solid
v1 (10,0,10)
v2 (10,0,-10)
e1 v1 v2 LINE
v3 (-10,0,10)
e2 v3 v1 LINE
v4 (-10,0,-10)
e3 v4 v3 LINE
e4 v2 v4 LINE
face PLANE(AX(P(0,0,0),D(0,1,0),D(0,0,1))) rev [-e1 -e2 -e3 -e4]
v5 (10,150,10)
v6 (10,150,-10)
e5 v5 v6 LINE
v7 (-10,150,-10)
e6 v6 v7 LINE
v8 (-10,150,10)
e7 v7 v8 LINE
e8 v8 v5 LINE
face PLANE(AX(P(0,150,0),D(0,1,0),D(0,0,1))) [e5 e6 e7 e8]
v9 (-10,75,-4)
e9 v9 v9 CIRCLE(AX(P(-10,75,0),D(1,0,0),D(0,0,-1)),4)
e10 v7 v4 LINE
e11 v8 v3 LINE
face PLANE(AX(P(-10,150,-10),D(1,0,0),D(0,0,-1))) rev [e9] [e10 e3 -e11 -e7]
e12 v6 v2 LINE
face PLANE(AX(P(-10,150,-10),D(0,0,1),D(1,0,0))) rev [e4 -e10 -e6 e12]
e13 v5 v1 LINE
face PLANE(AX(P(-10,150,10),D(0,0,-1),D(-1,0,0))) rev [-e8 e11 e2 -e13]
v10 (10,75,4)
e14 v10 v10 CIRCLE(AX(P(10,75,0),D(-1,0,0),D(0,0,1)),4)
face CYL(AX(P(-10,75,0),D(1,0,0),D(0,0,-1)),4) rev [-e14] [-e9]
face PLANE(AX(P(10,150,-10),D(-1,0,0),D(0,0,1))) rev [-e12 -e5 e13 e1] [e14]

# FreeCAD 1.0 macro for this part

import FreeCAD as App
import Part
import Sketcher

V = App.Vector


def add_polygon(sketch, points):
    """Adds a closed chain of lines whose ends are joined by coincident constraints."""
    first, n = sketch.GeometryCount, len(points)
    for a, b in zip(points, points[1:] + points[:1]):
        sketch.addGeometry(Part.LineSegment(App.Vector(*a, 0), App.Vector(*b, 0)), False)
    for i in range(n):
        sketch.addConstraint(Sketcher.Constraint("Coincident", first + i, 2, first + (i + 1) % n, 1))

doc = App.newDocument("Part")
params = doc.addObject("Spreadsheet::Sheet", "Params")
for row, (alias, value) in enumerate([
    ("sketch1_width", "20 mm"),
    ("pad1_length", "150 mm"),
    ("sketch2_diameter", "8 mm"),
], start=1):
    params.set(f"A{row}", alias)
    params.set(f"B{row}", "=" + value)
    params.setAlias(f"B{row}", alias)

body = doc.addObject("PartDesign::Body", "Body")

sketch1 = body.newObject("Sketcher::SketchObject", "Sketch")
sketch1.AttachmentSupport = (doc.getObject("XZ_Plane"), [""])
sketch1.MapMode = "FlatFace"
add_polygon(sketch1, [(-10, -10), (-10, 10), (10, 10), (10, -10)])
sketch1.addConstraint(Sketcher.Constraint("Vertical", 0))
sketch1.addConstraint(Sketcher.Constraint("Horizontal", 1))
sketch1.addConstraint(Sketcher.Constraint("Vertical", 2))
sketch1.addConstraint(Sketcher.Constraint("Horizontal", 3))
sketch1.addConstraint(Sketcher.Constraint("Symmetric", 0, 2, 2, 2, -1, 1))
sketch1.addConstraint(Sketcher.Constraint("Equal", 3, 0))
sketch1.addConstraint(Sketcher.Constraint("DistanceX", 1, 1, 1, 2, 20.0))
sketch1.setExpression("Constraints[10]", "Params.sketch1_width")
pad1 = body.newObject("PartDesign::Pad", "Pad")
pad1.Profile = sketch1
pad1.setExpression("Length", "Params.pad1_length")
pad1.Reversed = True

sketch2 = body.newObject("Sketcher::SketchObject", "Sketch001")
sketch2.AttachmentSupport = (doc.getObject("YZ_Plane"), [""])
sketch2.MapMode = "FlatFace"
sketch2.AttachmentOffset = App.Placement(V(0, 0, 10), App.Rotation())
sketch2.addGeometry(Part.Circle(V(75, 0, 0), V(0, 0, 1), 4), False)
sketch2.addConstraint(Sketcher.Constraint("PointOnObject", 0, 3, -1))
sketch2.addConstraint(Sketcher.Constraint("Diameter", 0, 8.0))
sketch2.addConstraint(Sketcher.Constraint("DistanceX", -1, 1, 0, 3, 75.0))
sketch2.setExpression("Constraints[1]", "Params.sketch2_diameter")
pocket1 = body.newObject("PartDesign::Pocket", "Pocket")
pocket1.Profile = sketch2
pocket1.Type = "ThroughAll"
pocket1.Midplane = True

doc.recompute()
